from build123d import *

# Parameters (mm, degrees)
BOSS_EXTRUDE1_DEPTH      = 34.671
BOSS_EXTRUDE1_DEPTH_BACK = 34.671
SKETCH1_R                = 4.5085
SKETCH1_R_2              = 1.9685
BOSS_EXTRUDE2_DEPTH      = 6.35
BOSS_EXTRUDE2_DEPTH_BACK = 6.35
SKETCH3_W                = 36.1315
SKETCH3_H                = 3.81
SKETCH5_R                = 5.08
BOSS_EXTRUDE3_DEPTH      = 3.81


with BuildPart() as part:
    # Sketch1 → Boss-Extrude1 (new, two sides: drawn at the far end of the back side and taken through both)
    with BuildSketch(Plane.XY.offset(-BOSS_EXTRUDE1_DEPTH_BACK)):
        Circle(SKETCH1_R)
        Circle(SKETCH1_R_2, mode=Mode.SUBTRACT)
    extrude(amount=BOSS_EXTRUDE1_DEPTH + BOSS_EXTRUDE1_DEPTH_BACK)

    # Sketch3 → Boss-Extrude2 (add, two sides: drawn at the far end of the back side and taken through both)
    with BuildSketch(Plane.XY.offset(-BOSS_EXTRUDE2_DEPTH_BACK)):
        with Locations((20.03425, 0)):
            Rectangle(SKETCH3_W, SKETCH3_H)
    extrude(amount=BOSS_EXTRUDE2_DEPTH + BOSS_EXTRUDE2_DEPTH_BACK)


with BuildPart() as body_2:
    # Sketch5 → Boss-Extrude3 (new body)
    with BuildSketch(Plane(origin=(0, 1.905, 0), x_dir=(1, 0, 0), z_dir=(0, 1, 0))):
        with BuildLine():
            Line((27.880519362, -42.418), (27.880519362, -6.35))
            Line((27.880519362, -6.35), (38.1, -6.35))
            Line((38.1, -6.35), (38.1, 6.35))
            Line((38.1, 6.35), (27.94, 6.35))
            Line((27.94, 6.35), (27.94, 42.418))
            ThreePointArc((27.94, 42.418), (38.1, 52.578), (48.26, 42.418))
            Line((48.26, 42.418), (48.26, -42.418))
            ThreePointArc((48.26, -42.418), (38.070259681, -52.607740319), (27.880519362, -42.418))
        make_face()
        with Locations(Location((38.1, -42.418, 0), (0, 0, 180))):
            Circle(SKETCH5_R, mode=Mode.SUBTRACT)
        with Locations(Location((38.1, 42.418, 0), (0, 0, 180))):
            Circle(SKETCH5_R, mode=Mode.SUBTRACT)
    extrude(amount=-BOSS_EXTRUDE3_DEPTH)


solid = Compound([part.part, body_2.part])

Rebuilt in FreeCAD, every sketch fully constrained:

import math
import FreeCAD as App
import Part
import Sketcher
Q = App.Units.Quantity


def add_polygon(sketch, points):
    """Adds a closed chain of lines whose ends are joined by coincident constraints."""
    first, n = sketch.GeometryCount, len(points)
    for a, b in zip(points, points[1:] + points[:1]):
        sketch.addGeometry(Part.LineSegment(App.Vector(*a, 0), App.Vector(*b, 0)), False)
    for i in range(n):
        sketch.addConstraint(Sketcher.Constraint("Coincident", first + i, 2, first + (i + 1) % n, 1))

doc = App.newDocument("Part")
body = doc.addObject("PartDesign::Body", "Body")

# Sketch on XY plane
sketch1 = body.newObject("Sketcher::SketchObject", "Sketch")
sketch1.AttachmentSupport = (doc.getObject("XY_Plane"), [""])
sketch1.MapMode = "FlatFace"
sketch1.addGeometry([
    Part.Circle(App.Vector(0, 0, 0), App.Vector(0, 0, 1), 4.5),
    Part.Circle(App.Vector(0, 0, 0), App.Vector(0, 0, 1), 2),
], False)
sketch1.addConstraint([
    Sketcher.Constraint("Coincident", 0, 3, -1, 1),
    Sketcher.Constraint("Coincident", 1, 3, -1, 1),
    Sketcher.Constraint("Diameter", 0, Q("0.355 in")),
    Sketcher.Constraint("Diameter", 1, Q("0.155 in")),
])
pad1 = body.newObject("PartDesign::Pad", "Pad")
pad1.Profile = sketch1
pad1.Type = "TwoLengths"
pad1.Length = Q("1.365 in")
pad1.Length2 = Q("1.365 in")

# Sketch on XY plane
sketch2 = body.newObject("Sketcher::SketchObject", "Sketch001")
sketch2.AttachmentSupport = (doc.getObject("XY_Plane"), [""])
sketch2.MapMode = "FlatFace"
add_polygon(sketch2, [(2, 1.9), (2, -1.9), (38.1, -1.9), (38.1, 1.9)])  # lines 0-3
sketch2.addConstraint([
    Sketcher.Constraint("Vertical", 0),
    Sketcher.Constraint("Horizontal", 1),
    Sketcher.Constraint("Vertical", 2),
    Sketcher.Constraint("Horizontal", 3),
    Sketcher.Constraint("DistanceY", 0, 2, 0, 1, Q("0.15 in")),
    Sketcher.Constraint("DistanceX", -1, 1, 1, 2, Q("1.5 in")),
    Sketcher.Constraint("DistanceX", 1, 1, 1, 2, Q("1.4225 in")),
    Sketcher.Constraint("DistanceY", 0, 2, -1, 1, Q("0.075 in")),
])
pad2 = body.newObject("PartDesign::Pad", "Pad001")
pad2.Profile = sketch2
pad2.Type = "TwoLengths"
pad2.Length = Q("0.25 in")
pad2.Length2 = Q("0.25 in")
body2 = doc.addObject("PartDesign::Body", "Body001")

# Sketch on XZ plane
sketch3 = body2.newObject("Sketcher::SketchObject", "Sketch002")
sketch3.AttachmentSupport = (doc.getObject("XZ_Plane001"), [""])
sketch3.MapMode = "FlatFace"
sketch3.AttachmentOffset = App.Placement(App.Vector(0, 0, -0.075 * 25.4), App.Rotation())
sketch3.addGeometry([
    Part.LineSegment(App.Vector(28, 6, 0), App.Vector(28, 42, 0)),  # 0
    Part.ArcOfCircle(Part.Circle(App.Vector(38, 42, 0), App.Vector(0, 0, 1), 10), math.radians(0), math.radians(180)),  # 1
    Part.LineSegment(App.Vector(48, 42, 0), App.Vector(48, -42, 0)),  # 2
    Part.ArcOfCircle(Part.Circle(App.Vector(38, -42, 0), App.Vector(0, 0, 1), 10), math.radians(180), math.radians(360)),  # 3
    Part.LineSegment(App.Vector(28, -42, 0), App.Vector(28, -6, 0)),  # 4
    Part.LineSegment(App.Vector(28, -6, 0), App.Vector(38, -6, 0)),  # 5
    Part.LineSegment(App.Vector(38, -6, 0), App.Vector(38, 6, 0)),  # 6
    Part.LineSegment(App.Vector(38, 6, 0), App.Vector(28, 6, 0)),  # 7
    Part.Circle(App.Vector(38, 42, 0), App.Vector(0, 0, 1), 5),  # 8
    Part.Circle(App.Vector(38, -42, 0), App.Vector(0, 0, 1), 5),  # 9
], False)
sketch3.addConstraint([
    Sketcher.Constraint("Tangent", 0, 2, 1, 2),
    Sketcher.Constraint("Tangent", 1, 1, 2, 1),
    Sketcher.Constraint("Tangent", 2, 2, 3, 2),
    Sketcher.Constraint("Tangent", 3, 1, 4, 1),
    Sketcher.Constraint("Coincident", 4, 2, 5, 1),
    Sketcher.Constraint("Coincident", 5, 2, 6, 1),
    Sketcher.Constraint("Coincident", 6, 2, 7, 1),
    Sketcher.Constraint("Coincident", 7, 2, 0, 1),
    Sketcher.Constraint("Vertical", 0),
    Sketcher.Constraint("Vertical", 2),
    Sketcher.Constraint("Vertical", 4),
    Sketcher.Constraint("Horizontal", 5),
    Sketcher.Constraint("Vertical", 6),
    Sketcher.Constraint("Horizontal", 7),
    Sketcher.Constraint("Coincident", 9, 3, 3, 3),
    Sketcher.Constraint("Equal", 8, 9),
    Sketcher.Constraint("Symmetric", 3, 3, 8, 3, -1),
    Sketcher.Constraint("Horizontal", 1, 3, 8, 3),
    Sketcher.Constraint("Vertical", 9, 3, 5, 2),
    Sketcher.Constraint("Equal", 0, 4),
    Sketcher.Constraint("Diameter", 8, Q("0.4 in")),
    Sketcher.Constraint("Radius", 3, Q("0.4 in")),
    Sketcher.Constraint("DistanceY", 6, 1, 6, 2, Q("0.5 in")),
    Sketcher.Constraint("DistanceY", 0, 1, 0, 2, Q("1.42 in")),
    Sketcher.Constraint("DistanceX", -1, 1, 3, 3, Q("1.5 in")),
    Sketcher.Constraint("Radius", 1, 10.18974),
])
pad3 = body2.newObject("PartDesign::Pad", "Pad002")
pad3.Profile = sketch3
pad3.Length = Q("0.15 in")

doc.recompute()
